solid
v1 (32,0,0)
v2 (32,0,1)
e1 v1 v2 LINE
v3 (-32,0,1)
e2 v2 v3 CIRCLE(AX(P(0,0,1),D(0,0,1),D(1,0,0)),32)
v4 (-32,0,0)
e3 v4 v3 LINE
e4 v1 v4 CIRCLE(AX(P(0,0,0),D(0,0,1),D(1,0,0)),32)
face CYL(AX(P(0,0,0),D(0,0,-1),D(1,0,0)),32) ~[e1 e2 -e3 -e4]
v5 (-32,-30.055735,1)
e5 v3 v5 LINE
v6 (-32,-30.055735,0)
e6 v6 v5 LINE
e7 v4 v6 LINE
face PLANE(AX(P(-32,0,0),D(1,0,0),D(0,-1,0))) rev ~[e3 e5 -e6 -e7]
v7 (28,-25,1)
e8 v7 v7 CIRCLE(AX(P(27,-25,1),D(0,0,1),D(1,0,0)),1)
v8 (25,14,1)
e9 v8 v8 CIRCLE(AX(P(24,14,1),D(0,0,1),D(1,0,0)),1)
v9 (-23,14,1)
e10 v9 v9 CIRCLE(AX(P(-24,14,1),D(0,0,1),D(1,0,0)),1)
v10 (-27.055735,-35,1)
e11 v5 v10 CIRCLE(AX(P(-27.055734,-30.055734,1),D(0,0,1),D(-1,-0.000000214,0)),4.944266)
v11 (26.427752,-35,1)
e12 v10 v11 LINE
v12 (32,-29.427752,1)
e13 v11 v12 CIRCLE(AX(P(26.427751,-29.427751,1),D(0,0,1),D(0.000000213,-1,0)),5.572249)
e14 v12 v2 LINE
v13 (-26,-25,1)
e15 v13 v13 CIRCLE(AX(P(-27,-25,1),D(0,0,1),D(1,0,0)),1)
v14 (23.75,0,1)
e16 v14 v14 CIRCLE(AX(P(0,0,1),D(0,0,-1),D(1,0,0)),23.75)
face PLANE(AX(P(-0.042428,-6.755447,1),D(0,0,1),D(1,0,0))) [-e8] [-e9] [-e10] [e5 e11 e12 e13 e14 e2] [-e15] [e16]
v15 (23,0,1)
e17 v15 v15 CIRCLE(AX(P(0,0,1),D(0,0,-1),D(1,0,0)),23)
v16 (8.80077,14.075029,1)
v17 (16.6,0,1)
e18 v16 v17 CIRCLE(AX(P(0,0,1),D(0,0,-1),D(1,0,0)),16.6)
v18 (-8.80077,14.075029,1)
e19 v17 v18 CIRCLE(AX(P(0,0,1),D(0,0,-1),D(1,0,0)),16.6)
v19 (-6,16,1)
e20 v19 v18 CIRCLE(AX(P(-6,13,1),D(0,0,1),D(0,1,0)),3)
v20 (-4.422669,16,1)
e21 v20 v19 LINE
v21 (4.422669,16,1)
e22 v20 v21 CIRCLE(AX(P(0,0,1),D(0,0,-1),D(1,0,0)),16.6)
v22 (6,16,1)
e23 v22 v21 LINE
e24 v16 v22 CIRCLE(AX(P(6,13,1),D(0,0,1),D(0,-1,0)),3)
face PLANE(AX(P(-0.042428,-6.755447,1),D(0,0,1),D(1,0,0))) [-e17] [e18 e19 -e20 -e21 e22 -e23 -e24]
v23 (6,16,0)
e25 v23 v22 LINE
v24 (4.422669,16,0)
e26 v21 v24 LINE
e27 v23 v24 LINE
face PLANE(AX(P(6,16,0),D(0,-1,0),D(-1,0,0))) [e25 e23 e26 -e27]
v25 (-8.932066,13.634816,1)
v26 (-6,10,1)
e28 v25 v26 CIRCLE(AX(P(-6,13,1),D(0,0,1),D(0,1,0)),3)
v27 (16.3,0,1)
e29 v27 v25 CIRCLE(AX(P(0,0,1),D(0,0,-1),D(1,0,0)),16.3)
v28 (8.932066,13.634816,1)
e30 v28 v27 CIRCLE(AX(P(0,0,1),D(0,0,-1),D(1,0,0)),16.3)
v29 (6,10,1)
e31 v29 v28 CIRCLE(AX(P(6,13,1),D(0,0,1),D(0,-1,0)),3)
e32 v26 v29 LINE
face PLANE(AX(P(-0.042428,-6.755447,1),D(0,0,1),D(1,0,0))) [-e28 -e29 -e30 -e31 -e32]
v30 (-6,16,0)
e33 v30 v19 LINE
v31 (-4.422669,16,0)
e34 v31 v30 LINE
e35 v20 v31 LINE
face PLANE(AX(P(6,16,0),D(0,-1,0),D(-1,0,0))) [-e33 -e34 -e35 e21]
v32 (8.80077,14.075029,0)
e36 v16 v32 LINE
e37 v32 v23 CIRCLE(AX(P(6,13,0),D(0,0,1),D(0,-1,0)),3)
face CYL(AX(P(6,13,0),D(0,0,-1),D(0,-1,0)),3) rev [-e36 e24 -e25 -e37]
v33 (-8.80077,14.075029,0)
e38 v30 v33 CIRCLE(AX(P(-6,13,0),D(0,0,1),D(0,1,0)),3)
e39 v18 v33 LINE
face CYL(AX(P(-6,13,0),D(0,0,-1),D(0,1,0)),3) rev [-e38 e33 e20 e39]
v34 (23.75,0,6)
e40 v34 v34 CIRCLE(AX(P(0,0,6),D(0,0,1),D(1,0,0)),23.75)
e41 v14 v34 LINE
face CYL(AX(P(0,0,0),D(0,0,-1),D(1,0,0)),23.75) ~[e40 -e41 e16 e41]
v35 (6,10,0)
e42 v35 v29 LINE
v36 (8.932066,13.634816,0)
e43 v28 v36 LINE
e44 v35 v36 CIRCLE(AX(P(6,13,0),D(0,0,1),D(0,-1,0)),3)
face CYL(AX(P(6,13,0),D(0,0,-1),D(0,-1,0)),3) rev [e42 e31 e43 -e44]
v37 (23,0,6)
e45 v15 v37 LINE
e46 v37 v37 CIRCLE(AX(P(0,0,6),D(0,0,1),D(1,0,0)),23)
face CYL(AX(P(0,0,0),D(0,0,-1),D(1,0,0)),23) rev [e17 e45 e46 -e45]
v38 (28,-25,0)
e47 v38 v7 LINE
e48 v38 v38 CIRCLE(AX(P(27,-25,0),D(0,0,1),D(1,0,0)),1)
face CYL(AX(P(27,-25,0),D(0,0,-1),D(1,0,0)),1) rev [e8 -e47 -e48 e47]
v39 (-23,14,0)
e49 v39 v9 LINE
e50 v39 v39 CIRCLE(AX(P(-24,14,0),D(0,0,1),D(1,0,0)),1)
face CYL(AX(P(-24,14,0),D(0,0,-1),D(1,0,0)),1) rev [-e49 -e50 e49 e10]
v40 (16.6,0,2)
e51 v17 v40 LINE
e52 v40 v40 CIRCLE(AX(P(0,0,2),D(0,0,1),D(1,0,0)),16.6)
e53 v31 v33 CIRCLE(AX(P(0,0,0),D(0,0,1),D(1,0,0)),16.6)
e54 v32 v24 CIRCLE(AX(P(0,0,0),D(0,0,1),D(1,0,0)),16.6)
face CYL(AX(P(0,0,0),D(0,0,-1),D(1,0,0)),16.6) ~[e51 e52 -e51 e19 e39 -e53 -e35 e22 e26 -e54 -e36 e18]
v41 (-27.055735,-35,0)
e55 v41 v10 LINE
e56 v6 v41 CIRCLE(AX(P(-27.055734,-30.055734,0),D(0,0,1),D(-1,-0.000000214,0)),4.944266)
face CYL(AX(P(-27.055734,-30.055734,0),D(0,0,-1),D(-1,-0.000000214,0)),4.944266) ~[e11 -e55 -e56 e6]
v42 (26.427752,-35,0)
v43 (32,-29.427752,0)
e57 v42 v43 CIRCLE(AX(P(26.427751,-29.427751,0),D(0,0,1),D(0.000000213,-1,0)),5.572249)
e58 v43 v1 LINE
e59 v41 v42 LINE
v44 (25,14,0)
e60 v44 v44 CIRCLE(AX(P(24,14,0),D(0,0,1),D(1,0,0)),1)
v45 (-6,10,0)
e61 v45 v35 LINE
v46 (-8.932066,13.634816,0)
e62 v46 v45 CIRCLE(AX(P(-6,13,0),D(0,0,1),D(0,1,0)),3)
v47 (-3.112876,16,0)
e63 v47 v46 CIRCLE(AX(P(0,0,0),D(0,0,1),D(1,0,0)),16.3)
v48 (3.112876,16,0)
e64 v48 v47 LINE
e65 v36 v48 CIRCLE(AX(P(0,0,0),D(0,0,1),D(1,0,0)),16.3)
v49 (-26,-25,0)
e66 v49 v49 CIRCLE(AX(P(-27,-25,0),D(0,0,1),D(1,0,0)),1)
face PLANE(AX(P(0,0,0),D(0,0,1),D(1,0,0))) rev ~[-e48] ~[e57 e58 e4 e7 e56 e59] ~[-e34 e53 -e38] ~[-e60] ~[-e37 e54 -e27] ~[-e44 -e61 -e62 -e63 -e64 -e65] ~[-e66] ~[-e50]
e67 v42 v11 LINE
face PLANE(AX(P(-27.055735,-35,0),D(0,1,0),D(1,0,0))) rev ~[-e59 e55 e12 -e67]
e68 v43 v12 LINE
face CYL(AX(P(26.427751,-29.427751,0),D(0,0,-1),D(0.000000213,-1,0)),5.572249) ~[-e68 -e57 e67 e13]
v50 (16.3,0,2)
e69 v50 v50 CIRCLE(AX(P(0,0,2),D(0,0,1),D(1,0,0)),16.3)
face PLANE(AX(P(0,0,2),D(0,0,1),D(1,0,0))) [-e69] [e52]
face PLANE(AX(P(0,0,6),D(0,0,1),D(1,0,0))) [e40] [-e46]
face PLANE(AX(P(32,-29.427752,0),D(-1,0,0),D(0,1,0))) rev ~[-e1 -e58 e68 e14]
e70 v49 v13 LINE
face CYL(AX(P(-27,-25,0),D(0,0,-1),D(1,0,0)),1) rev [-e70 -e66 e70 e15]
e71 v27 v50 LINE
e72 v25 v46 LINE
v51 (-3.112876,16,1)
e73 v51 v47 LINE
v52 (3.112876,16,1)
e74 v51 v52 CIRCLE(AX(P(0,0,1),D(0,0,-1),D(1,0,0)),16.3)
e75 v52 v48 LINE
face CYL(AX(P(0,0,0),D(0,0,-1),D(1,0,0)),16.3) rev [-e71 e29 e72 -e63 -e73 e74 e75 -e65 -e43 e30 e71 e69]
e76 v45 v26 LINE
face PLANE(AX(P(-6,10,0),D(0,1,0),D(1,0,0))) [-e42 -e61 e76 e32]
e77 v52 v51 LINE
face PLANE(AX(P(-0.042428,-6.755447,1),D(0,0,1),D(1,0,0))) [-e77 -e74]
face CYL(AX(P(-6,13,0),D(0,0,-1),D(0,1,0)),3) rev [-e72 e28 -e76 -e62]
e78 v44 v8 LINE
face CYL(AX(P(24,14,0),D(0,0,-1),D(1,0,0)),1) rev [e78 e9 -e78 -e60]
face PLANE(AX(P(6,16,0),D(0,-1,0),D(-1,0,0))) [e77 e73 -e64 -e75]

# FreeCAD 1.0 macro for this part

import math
import FreeCAD as App
import Part
import Sketcher
from FreeCAD import Vector
Q = App.Units.Quantity

doc = App.newDocument("Part")
params = doc.addObject("Spreadsheet::Sheet", "Params")
for row, (alias, value) in enumerate([
    ("sketch1_diameter", "46 mm"),
    ("sketch1_diameter2", "47.5 mm"),
    ("pad1_length", "6 mm"),
    ("sketch2_diameter", "2 mm"),
    ("sketch2_radius", "32 mm"),
    ("sketch2_radius2", "3 mm"),
    ("sketch2_width", "12 mm"),
    ("pad2_length", "1 mm"),
    ("sketch3_diameter", "33.2 mm"),
    ("sketch3_diameter2", "32.6 mm"),
    ("pad3_length", "2 mm"),
], start=1):
    params.set(f"A{row}", alias)
    params.set(f"B{row}", "=" + value)
    params.setAlias(f"B{row}", alias)

body = doc.addObject("PartDesign::Body", "Body")

sketch1 = body.newObject("Sketcher::SketchObject", "Sketch")
sketch1.AttachmentSupport = (doc.getObject("XY_Plane"), [""])
sketch1.MapMode = "FlatFace"
sketch1.addGeometry(Part.Circle(Vector(0, 0, 0), Vector(0, 0, 1), 23.75), False)
sketch1.addGeometry(Part.Circle(Vector(0, 0, 0), Vector(0, 0, 1), 23), False)
sketch1.addConstraint(Sketcher.Constraint("Coincident", 0, 3, -1, 1))
sketch1.addConstraint(Sketcher.Constraint("Coincident", 1, 3, -1, 1))
sketch1.addConstraint(Sketcher.Constraint("Diameter", 1, Q("46 mm")))
sketch1.addConstraint(Sketcher.Constraint("Diameter", 0, Q("47.5 mm")))
sketch1.setExpression("Constraints[2]", "Params.sketch1_diameter")
sketch1.setExpression("Constraints[3]", "Params.sketch1_diameter2")
pad1 = body.newObject("PartDesign::Pad", "Pad")
pad1.Profile = sketch1
pad1.setExpression("Length", "Params.pad1_length")
body2 = doc.addObject("PartDesign::Body", "Body001")

sketch2 = body2.newObject("Sketcher::SketchObject", "Sketch001")
sketch2.AttachmentSupport = (doc.getObject("XY_Plane001"), [""])
sketch2.MapMode = "FlatFace"
sketch2.addGeometry(Part.ArcOfCircle(Part.Circle(Vector(0, 0, 0), Vector(0, 0, 1), 32), math.radians(0), math.radians(180)), False)
sketch2.addGeometry(Part.LineSegment(Vector(-32, 0, 0), Vector(-32, -30.055735, 0)), False)
sketch2.addGeometry(Part.ArcOfCircle(Part.Circle(Vector(-27.055734, -30.055734, 0), Vector(0, 0, 1), 4.944266), math.radians(-179.999988), math.radians(-90.000012)), False)
sketch2.addGeometry(Part.LineSegment(Vector(-27.055735, -35, 0), Vector(26.427752, -35, 0)), False)
sketch2.addGeometry(Part.ArcOfCircle(Part.Circle(Vector(26.427751, -29.427751, 0), Vector(0, 0, 1), 5.572249), math.radians(-89.999988), math.radians(-0.000012)), False)
sketch2.addGeometry(Part.LineSegment(Vector(32, -29.427752, 0), Vector(32, 0, 0)), False)
sketch2.addGeometry(Part.Circle(Vector(-27, -25, 0), Vector(0, 0, 1), 1), False)
sketch2.addGeometry(Part.Circle(Vector(27, -25, 0), Vector(0, 0, 1), 1), False)
sketch2.addGeometry(Part.Circle(Vector(-24, 14, 0), Vector(0, 0, 1), 1), False)
sketch2.addGeometry(Part.ArcOfCircle(Part.Circle(Vector(-6, 13, 0), Vector(0, 0, 1), 3), math.radians(90), math.radians(270)), False)
sketch2.addGeometry(Part.LineSegment(Vector(-6, 16, 0), Vector(6, 16, 0)), False)
sketch2.addGeometry(Part.ArcOfCircle(Part.Circle(Vector(6, 13, 0), Vector(0, 0, 1), 3), math.radians(-90), math.radians(90)), False)
sketch2.addGeometry(Part.LineSegment(Vector(6, 10, 0), Vector(-6, 10, 0)), False)
sketch2.addGeometry(Part.Circle(Vector(24, 14, 0), Vector(0, 0, 1), 1), False)
sketch2.addConstraint(Sketcher.Constraint("Tangent", 0, 2, 1, 1))
sketch2.addConstraint(Sketcher.Constraint("Tangent", 1, 2, 2, 1))
sketch2.addConstraint(Sketcher.Constraint("Tangent", 2, 2, 3, 1))
sketch2.addConstraint(Sketcher.Constraint("Tangent", 3, 2, 4, 1))
sketch2.addConstraint(Sketcher.Constraint("Tangent", 4, 2, 5, 1))
sketch2.addConstraint(Sketcher.Constraint("Tangent", 5, 2, 0, 1))
sketch2.addConstraint(Sketcher.Constraint("Tangent", 9, 1, 10, 1))
sketch2.addConstraint(Sketcher.Constraint("Tangent", 10, 2, 11, 2))
sketch2.addConstraint(Sketcher.Constraint("Tangent", 11, 1, 12, 1))
sketch2.addConstraint(Sketcher.Constraint("Tangent", 12, 2, 9, 2))
sketch2.addConstraint(Sketcher.Constraint("Vertical", 1))
sketch2.addConstraint(Sketcher.Constraint("Horizontal", 3))
sketch2.addConstraint(Sketcher.Constraint("Vertical", 5))
sketch2.addConstraint(Sketcher.Constraint("Horizontal", 10))
sketch2.addConstraint(Sketcher.Constraint("Horizontal", 12))
sketch2.addConstraint(Sketcher.Constraint("Coincident", 0, 3, -1, 1))
sketch2.addConstraint(Sketcher.Constraint("Equal", 6, 7))
sketch2.addConstraint(Sketcher.Constraint("Equal", 7, 8))
sketch2.addConstraint(Sketcher.Constraint("Equal", 8, 13))
sketch2.addConstraint(Sketcher.Constraint("Symmetric", 6, 3, 7, 3, -2))
sketch2.addConstraint(Sketcher.Constraint("Symmetric", 8, 3, 13, 3, -2))
sketch2.addConstraint(Sketcher.Constraint("Diameter", 6, Q("2 mm")))
sketch2.addConstraint(Sketcher.Constraint("Radius", 0, Q("32 mm")))
sketch2.addConstraint(Sketcher.Constraint("Radius", 9, Q("3 mm")))
sketch2.addConstraint(Sketcher.Constraint("DistanceX", 10, 1, 10, 2, Q("12 mm")))
sketch2.addConstraint(Sketcher.Constraint("DistanceX", 6, 3, -1, 1, Q("27 mm")))
sketch2.addConstraint(Sketcher.Constraint("DistanceY", 6, 3, -1, 1, Q("25 mm")))
sketch2.addConstraint(Sketcher.Constraint("DistanceX", 8, 3, -1, 1, Q("24 mm")))
sketch2.addConstraint(Sketcher.Constraint("DistanceY", -1, 1, 8, 3, Q("14 mm")))
sketch2.addConstraint(Sketcher.Constraint("DistanceX", 9, 3, -1, 1, Q("6 mm")))
sketch2.addConstraint(Sketcher.Constraint("DistanceY", -1, 1, 9, 3, Q("13 mm")))
sketch2.addConstraint(Sketcher.Constraint("DistanceY", 2, 2, -1, 1, Q("35 mm")))
sketch2.addConstraint(Sketcher.Constraint("Radius", 4, Q("5.572249 mm")))
sketch2.addConstraint(Sketcher.Constraint("Radius", 2, Q("4.944266 mm")))
sketch2.setExpression("Constraints[21]", "Params.sketch2_diameter")
sketch2.setExpression("Constraints[22]", "Params.sketch2_radius")
sketch2.setExpression("Constraints[23]", "Params.sketch2_radius2")
sketch2.setExpression("Constraints[24]", "Params.sketch2_width")
pad2 = body2.newObject("PartDesign::Pad", "Pad001")
pad2.Profile = sketch2
pad2.setExpression("Length", "Params.pad2_length")

sketch3 = body2.newObject("Sketcher::SketchObject", "Sketch002")
sketch3.AttachmentSupport = (doc.getObject("XY_Plane001"), [""])
sketch3.MapMode = "FlatFace"
sketch3.addGeometry(Part.Circle(Vector(0, 0, 0), Vector(0, 0, 1), 16.6), False)
sketch3.addGeometry(Part.Circle(Vector(0, 0, 0), Vector(0, 0, 1), 16.3), False)
sketch3.addConstraint(Sketcher.Constraint("Coincident", 0, 3, -1, 1))
sketch3.addConstraint(Sketcher.Constraint("Coincident", 1, 3, -1, 1))
sketch3.addConstraint(Sketcher.Constraint("Diameter", 0, Q("33.2 mm")))
sketch3.addConstraint(Sketcher.Constraint("Diameter", 1, Q("32.6 mm")))
sketch3.setExpression("Constraints[2]", "Params.sketch3_diameter")
sketch3.setExpression("Constraints[3]", "Params.sketch3_diameter2")
pad3 = body2.newObject("PartDesign::Pad", "Pad002")
pad3.Profile = sketch3
pad3.setExpression("Length", "Params.pad3_length")
doc.recompute()

boolean = body2.newObject("PartDesign::Boolean", "Boolean")
boolean.Type = "Fuse"
boolean.addObjects([body])

doc.recompute()
